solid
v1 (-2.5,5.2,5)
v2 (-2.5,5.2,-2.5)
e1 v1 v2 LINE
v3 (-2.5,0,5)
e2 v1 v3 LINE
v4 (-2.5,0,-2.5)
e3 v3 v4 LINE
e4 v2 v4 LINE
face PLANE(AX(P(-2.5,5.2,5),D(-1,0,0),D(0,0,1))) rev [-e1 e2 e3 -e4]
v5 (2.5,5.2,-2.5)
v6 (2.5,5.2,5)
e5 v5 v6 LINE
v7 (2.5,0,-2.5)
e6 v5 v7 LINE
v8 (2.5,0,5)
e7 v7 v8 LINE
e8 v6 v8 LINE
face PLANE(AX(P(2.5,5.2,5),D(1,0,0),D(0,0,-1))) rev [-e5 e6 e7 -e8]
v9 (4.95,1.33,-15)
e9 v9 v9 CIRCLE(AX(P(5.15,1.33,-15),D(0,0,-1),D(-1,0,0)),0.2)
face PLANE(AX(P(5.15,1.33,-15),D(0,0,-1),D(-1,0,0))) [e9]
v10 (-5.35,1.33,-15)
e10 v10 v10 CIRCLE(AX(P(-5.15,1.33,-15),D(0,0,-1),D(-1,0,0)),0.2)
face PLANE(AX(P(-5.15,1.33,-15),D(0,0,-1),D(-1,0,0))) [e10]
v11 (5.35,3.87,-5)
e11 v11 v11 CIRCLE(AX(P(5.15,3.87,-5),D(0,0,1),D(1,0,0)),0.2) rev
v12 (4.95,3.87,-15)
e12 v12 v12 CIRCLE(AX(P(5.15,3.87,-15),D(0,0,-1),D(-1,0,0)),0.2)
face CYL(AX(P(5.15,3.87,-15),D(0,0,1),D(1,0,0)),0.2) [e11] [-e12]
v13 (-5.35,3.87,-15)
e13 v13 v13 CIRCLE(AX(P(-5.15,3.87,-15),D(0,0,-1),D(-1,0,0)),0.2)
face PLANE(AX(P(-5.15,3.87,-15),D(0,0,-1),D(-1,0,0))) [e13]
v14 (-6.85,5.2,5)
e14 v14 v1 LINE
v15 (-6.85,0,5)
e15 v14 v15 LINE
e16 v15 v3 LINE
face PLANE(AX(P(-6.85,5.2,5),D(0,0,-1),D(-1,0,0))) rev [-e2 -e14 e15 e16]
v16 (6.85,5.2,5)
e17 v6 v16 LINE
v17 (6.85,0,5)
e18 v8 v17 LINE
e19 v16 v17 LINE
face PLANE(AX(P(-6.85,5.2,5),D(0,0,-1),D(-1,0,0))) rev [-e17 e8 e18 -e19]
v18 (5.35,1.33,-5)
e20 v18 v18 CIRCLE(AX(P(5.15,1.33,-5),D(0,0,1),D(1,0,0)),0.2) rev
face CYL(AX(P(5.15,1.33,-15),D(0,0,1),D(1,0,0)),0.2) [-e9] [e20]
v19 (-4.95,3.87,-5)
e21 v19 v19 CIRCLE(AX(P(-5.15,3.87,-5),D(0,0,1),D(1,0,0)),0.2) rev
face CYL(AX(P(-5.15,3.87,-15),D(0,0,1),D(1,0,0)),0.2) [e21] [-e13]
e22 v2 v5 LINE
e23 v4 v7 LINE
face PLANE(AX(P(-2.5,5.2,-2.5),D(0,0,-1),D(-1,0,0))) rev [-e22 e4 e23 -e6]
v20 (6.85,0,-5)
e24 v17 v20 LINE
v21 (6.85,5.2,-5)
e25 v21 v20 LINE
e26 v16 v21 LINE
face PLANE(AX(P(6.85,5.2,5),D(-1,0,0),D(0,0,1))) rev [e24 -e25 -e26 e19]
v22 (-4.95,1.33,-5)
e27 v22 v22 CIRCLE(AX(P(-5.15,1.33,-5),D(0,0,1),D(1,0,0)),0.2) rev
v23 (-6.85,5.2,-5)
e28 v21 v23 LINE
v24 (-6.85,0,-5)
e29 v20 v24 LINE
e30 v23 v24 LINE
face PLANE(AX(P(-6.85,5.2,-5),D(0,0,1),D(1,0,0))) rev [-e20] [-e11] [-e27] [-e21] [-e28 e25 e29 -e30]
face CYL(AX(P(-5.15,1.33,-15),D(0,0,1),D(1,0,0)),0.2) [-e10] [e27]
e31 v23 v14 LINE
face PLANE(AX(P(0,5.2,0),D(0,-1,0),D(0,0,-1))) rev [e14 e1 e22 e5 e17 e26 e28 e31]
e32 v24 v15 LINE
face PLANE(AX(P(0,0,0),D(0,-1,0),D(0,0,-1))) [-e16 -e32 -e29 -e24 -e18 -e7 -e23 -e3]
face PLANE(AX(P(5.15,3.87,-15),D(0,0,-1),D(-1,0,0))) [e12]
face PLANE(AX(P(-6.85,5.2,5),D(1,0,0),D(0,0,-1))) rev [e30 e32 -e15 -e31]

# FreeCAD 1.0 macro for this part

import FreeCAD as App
import Part
import Sketcher
Q = App.Units.Quantity

doc = App.newDocument("Part")
params = doc.addObject("Spreadsheet::Sheet", "Params")
for row, (alias, value) in enumerate([
    ("sketch1_height", "10 mm"),
    ("sketch1_width", "13.7 mm"),
    ("pad1_length", "5.2 mm"),
    ("sketch2_width", "5 mm"),
    ("sketch2_height", "7.5 mm"),
    ("sketch3_diameter", "0.4 mm"),
    ("pad2_length", "10 mm"),
], start=1):
    params.set(f"A{row}", alias)
    params.set(f"B{row}", "=" + value)
    params.setAlias(f"B{row}", alias)

body = doc.addObject("PartDesign::Body", "Body")

# Sketch on XZ plane
sketch1 = doc.addObject("Sketcher::SketchObject", "Sketch")
body.addObject(sketch1)
sketch1.AttachmentSupport = (doc.XZ_Plane, [""])
sketch1.MapMode = "FlatFace"
sketch1.addGeometry([
    Part.LineSegment(App.Vector(-7, -5, 0), App.Vector(-7, 5, 0)),
    Part.LineSegment(App.Vector(-7, 5, 0), App.Vector(7, 5, 0)),
    Part.LineSegment(App.Vector(7, 5, 0), App.Vector(7, -5, 0)),
    Part.LineSegment(App.Vector(7, -5, 0), App.Vector(-7, -5, 0)),
], False)
sketch1.addConstraint([
    Sketcher.Constraint("Coincident", 0, 2, 1, 1),
    Sketcher.Constraint("Coincident", 1, 2, 2, 1),
    Sketcher.Constraint("Coincident", 2, 2, 3, 1),
    Sketcher.Constraint("Coincident", 3, 2, 0, 1),
    Sketcher.Constraint("Vertical", 0),
    Sketcher.Constraint("Horizontal", 1),
    Sketcher.Constraint("Vertical", 2),
    Sketcher.Constraint("Horizontal", 3),
    Sketcher.Constraint("Symmetric", 0, 2, 2, 2, -1, 1),
    Sketcher.Constraint("DistanceY", 0, 1, 0, 2, Q("10 mm")),
    Sketcher.Constraint("DistanceX", 1, 1, 1, 2, Q("13.7 mm")),
])
sketch1.setExpression("Constraints[9]", "Params.sketch1_height")
sketch1.setExpression("Constraints[10]", "Params.sketch1_width")
pad1 = doc.addObject("PartDesign::Pad", "Pad")
body.addObject(pad1)
pad1.Profile = sketch1
pad1.setExpression("Length", "Params.pad1_length")
pad1.Reversed = True

# Sketch on XZ plane
sketch2 = doc.addObject("Sketcher::SketchObject", "Sketch001")
body.addObject(sketch2)
sketch2.AttachmentSupport = (doc.XZ_Plane, [""])
sketch2.MapMode = "FlatFace"
sketch2.addGeometry([
    Part.LineSegment(App.Vector(-2, 5, 0), App.Vector(-2, -2, 0)),
    Part.LineSegment(App.Vector(-2, -2, 0), App.Vector(2, -2, 0)),
    Part.LineSegment(App.Vector(2, -2, 0), App.Vector(2, 5, 0)),
    Part.LineSegment(App.Vector(2, 5, 0), App.Vector(-2, 5, 0)),
], False)
sketch2.addConstraint([
    Sketcher.Constraint("Coincident", 0, 2, 1, 1),
    Sketcher.Constraint("Coincident", 1, 2, 2, 1),
    Sketcher.Constraint("Coincident", 2, 2, 3, 1),
    Sketcher.Constraint("Coincident", 3, 2, 0, 1),
    Sketcher.Constraint("Vertical", 0),
    Sketcher.Constraint("Horizontal", 1),
    Sketcher.Constraint("Vertical", 2),
    Sketcher.Constraint("Horizontal", 3),
    Sketcher.Constraint("DistanceX", 1, 1, 1, 2, Q("5 mm")),
    Sketcher.Constraint("DistanceY", 0, 2, 0, 1, Q("7.5 mm")),
    Sketcher.Constraint("DistanceY", -1, 1, 2, 2, Q("5 mm")),
    Sketcher.Constraint("DistanceX", 0, 2, -1, 1, Q("2.5 mm")),
])
sketch2.setExpression("Constraints[8]", "Params.sketch2_width")
sketch2.setExpression("Constraints[9]", "Params.sketch2_height")
pocket1 = doc.addObject("PartDesign::Pocket", "Pocket")
body.addObject(pocket1)
pocket1.Profile = sketch2
pocket1.Type = "ThroughAll"

# Sketch on XY plane
sketch3 = doc.addObject("Sketcher::SketchObject", "Sketch002")
body.addObject(sketch3)
sketch3.AttachmentSupport = (doc.XY_Plane, [""])
sketch3.MapMode = "FlatFace"
sketch3.AttachmentOffset = App.Placement(App.Vector(0, 0, -5), App.Rotation())
sketch3.addGeometry([
    Part.Circle(App.Vector(5.15, 3.87, 0), App.Vector(0, 0, 1), 0.2),
    Part.Circle(App.Vector(5.15, 1.33, 0), App.Vector(0, 0, 1), 0.2),
    Part.Circle(App.Vector(-5.15, 3.87, 0), App.Vector(0, 0, 1), 0.2),
    Part.Circle(App.Vector(-5.15, 1.33, 0), App.Vector(0, 0, 1), 0.2),
], False)
sketch3.addConstraint([
    Sketcher.Constraint("Equal", 0, 1),
    Sketcher.Constraint("Equal", 1, 2),
    Sketcher.Constraint("Equal", 2, 3),
    Sketcher.Constraint("Symmetric", 0, 3, 2, 3, -2),
    Sketcher.Constraint("Symmetric", 1, 3, 3, 3, -2),
    Sketcher.Constraint("Vertical", 0, 3, 1, 3),
    Sketcher.Constraint("Diameter", 0, Q("0.4 mm")),
    Sketcher.Constraint("DistanceX", 2, 3, 0, 3, Q("10.3 mm")),
    Sketcher.Constraint("DistanceY", -1, 1, 0, 3, Q("3.87 mm")),
    Sketcher.Constraint("DistanceY", -1, 1, 1, 3, Q("1.33 mm")),
])
sketch3.setExpression("Constraints[6]", "Params.sketch3_diameter")
pad2 = doc.addObject("PartDesign::Pad", "Pad001")
body.addObject(pad2)
pad2.Profile = sketch3
pad2.setExpression("Length", "Params.pad2_length")
pad2.Reversed = True

doc.recompute()
